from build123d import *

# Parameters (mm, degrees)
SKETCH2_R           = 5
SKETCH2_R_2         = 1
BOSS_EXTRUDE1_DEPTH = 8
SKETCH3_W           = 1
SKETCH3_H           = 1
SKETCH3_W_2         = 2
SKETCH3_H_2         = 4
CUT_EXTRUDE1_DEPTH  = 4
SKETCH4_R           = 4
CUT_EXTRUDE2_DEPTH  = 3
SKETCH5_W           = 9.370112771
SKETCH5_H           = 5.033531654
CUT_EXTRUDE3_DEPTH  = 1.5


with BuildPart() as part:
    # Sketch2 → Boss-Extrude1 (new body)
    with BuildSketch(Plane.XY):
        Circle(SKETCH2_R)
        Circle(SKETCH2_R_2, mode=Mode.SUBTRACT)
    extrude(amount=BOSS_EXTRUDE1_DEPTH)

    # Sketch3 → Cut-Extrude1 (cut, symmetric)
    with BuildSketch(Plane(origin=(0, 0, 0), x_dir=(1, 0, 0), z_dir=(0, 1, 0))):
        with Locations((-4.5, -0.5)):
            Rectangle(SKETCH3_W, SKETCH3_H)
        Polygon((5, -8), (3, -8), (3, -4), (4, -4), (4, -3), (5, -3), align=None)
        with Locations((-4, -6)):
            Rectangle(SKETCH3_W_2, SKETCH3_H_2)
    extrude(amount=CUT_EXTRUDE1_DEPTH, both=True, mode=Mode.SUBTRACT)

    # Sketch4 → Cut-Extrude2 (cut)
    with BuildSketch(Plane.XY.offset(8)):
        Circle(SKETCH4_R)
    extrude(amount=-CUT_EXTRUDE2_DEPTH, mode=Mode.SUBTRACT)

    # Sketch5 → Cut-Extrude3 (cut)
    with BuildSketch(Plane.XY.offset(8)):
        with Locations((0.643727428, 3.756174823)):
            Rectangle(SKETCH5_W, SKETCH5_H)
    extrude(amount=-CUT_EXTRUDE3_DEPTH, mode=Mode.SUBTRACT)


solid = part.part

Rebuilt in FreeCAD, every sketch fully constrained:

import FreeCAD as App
import Part
import Sketcher
from FreeCAD import Vector


def add_polygon(sketch, points):
    """Adds a closed chain of lines whose ends are joined by coincident constraints."""
    first, n = sketch.GeometryCount, len(points)
    for a, b in zip(points, points[1:] + points[:1]):
        sketch.addGeometry(Part.LineSegment(App.Vector(*a, 0), App.Vector(*b, 0)), False)
    for i in range(n):
        sketch.addConstraint(Sketcher.Constraint("Coincident", first + i, 2, first + (i + 1) % n, 1))

doc = App.newDocument("Part")
body = doc.addObject("PartDesign::Body", "Body")

sketch1 = body.newObject("Sketcher::SketchObject", "Sketch")
sketch1.AttachmentSupport = (doc.getObject("XY_Plane"), [""])
sketch1.MapMode = "FlatFace"
sketch1.addGeometry([
    Part.Circle(Vector(0, 0, 0), Vector(0, 0, 1), 5),
    Part.Circle(Vector(0, 0, 0), Vector(0, 0, 1), 1),
], False)
sketch1.addConstraint([
    Sketcher.Constraint("Coincident", 0, 3, -1, 1),
    Sketcher.Constraint("Coincident", 1, 3, -1, 1),
    Sketcher.Constraint("Diameter", 0, 10.0),
    Sketcher.Constraint("Diameter", 1, 2.0),
])
pad1 = body.newObject("PartDesign::Pad", "Pad")
pad1.Profile = sketch1
pad1.Length = 8

sketch2 = body.newObject("Sketcher::SketchObject", "Sketch001")
sketch2.AttachmentSupport = (doc.getObject("XZ_Plane"), [""])
sketch2.MapMode = "FlatFace"
add_polygon(sketch2, [(-5, 0), (-5, 1), (-4, 1), (-4, 0)])
add_polygon(sketch2, [(3, 8), (5, 8), (5, 3), (4, 3), (4, 4), (3, 4)])
add_polygon(sketch2, [(-5, 4), (-5, 8), (-3, 8), (-3, 4)])
sketch2.addConstraint([
    Sketcher.Constraint("Vertical", 0),
    Sketcher.Constraint("Horizontal", 1),
    Sketcher.Constraint("Vertical", 2),
    Sketcher.Constraint("Horizontal", 3),
    Sketcher.Constraint("Horizontal", 4),
    Sketcher.Constraint("Vertical", 5),
    Sketcher.Constraint("Horizontal", 6),
    Sketcher.Constraint("Vertical", 7),
    Sketcher.Constraint("Horizontal", 8),
    Sketcher.Constraint("Vertical", 9),
    Sketcher.Constraint("Vertical", 10),
    Sketcher.Constraint("Horizontal", 11),
    Sketcher.Constraint("Vertical", 12),
    Sketcher.Constraint("Horizontal", 13),
    Sketcher.Constraint("Symmetric", 4, 2, 10, 2, -2),
    Sketcher.Constraint("Symmetric", 8, 2, 12, 2, -2),
    Sketcher.Constraint("PointOnObject", 2, 2, -1),
    Sketcher.Constraint("Vertical", 3, 2, 10, 2),
    Sketcher.Constraint("Equal", 3, 6),
    Sketcher.Constraint("Equal", 6, 8),
    Sketcher.Constraint("Equal", 8, 0),
    Sketcher.Constraint("Equal", 2, 7),
    Sketcher.Constraint("DistanceX", 1, 1, 1, 2, 1.0),
    Sketcher.Constraint("DistanceY", 5, 2, 5, 1, 5.0),
    Sketcher.Constraint("DistanceX", 0, 2, -1, 1, 5.0),
    Sketcher.Constraint("DistanceY", -1, 1, 4, 2, 8.0),
])
pocket1 = body.newObject("PartDesign::Pocket", "Pocket")
pocket1.Profile = sketch2
pocket1.Length = 8
pocket1.Midplane = True

sketch3 = body.newObject("Sketcher::SketchObject", "Sketch002")
sketch3.AttachmentSupport = (doc.getObject("XY_Plane"), [""])
sketch3.MapMode = "FlatFace"
sketch3.AttachmentOffset = App.Placement(Vector(0, 0, 8), App.Rotation())
sketch3.addGeometry(Part.Circle(Vector(0, 0, 0), Vector(0, 0, 1), 4), False)
sketch3.addConstraint([
    Sketcher.Constraint("Coincident", 0, 3, -1, 1),
    Sketcher.Constraint("Diameter", 0, 8.0),
])
pocket2 = body.newObject("PartDesign::Pocket", "Pocket001")
pocket2.Profile = sketch3
pocket2.Length = 3

sketch4 = body.newObject("Sketcher::SketchObject", "Sketch003")
sketch4.AttachmentSupport = (doc.getObject("XY_Plane"), [""])
sketch4.MapMode = "FlatFace"
sketch4.AttachmentOffset = App.Placement(Vector(0, 0, 8), App.Rotation())
add_polygon(sketch4, [(-4, 6), (-4, 1), (5, 1), (5, 6)])
sketch4.addConstraint([
    Sketcher.Constraint("Vertical", 0),
    Sketcher.Constraint("Horizontal", 1),
    Sketcher.Constraint("Vertical", 2),
    Sketcher.Constraint("Horizontal", 3),
    Sketcher.Constraint("DistanceY", 0, 2, 0, 1, 5.033532),
    Sketcher.Constraint("DistanceX", 1, 1, 1, 2, 9.370113),
    Sketcher.Constraint("DistanceX", 0, 2, -1, 1, 4.041329),
    Sketcher.Constraint("DistanceY", -1, 1, 0, 2, 1.239409),
])
pocket3 = body.newObject("PartDesign::Pocket", "Pocket002")
pocket3.Profile = sketch4
pocket3.Length = 1.5

doc.recompute()
